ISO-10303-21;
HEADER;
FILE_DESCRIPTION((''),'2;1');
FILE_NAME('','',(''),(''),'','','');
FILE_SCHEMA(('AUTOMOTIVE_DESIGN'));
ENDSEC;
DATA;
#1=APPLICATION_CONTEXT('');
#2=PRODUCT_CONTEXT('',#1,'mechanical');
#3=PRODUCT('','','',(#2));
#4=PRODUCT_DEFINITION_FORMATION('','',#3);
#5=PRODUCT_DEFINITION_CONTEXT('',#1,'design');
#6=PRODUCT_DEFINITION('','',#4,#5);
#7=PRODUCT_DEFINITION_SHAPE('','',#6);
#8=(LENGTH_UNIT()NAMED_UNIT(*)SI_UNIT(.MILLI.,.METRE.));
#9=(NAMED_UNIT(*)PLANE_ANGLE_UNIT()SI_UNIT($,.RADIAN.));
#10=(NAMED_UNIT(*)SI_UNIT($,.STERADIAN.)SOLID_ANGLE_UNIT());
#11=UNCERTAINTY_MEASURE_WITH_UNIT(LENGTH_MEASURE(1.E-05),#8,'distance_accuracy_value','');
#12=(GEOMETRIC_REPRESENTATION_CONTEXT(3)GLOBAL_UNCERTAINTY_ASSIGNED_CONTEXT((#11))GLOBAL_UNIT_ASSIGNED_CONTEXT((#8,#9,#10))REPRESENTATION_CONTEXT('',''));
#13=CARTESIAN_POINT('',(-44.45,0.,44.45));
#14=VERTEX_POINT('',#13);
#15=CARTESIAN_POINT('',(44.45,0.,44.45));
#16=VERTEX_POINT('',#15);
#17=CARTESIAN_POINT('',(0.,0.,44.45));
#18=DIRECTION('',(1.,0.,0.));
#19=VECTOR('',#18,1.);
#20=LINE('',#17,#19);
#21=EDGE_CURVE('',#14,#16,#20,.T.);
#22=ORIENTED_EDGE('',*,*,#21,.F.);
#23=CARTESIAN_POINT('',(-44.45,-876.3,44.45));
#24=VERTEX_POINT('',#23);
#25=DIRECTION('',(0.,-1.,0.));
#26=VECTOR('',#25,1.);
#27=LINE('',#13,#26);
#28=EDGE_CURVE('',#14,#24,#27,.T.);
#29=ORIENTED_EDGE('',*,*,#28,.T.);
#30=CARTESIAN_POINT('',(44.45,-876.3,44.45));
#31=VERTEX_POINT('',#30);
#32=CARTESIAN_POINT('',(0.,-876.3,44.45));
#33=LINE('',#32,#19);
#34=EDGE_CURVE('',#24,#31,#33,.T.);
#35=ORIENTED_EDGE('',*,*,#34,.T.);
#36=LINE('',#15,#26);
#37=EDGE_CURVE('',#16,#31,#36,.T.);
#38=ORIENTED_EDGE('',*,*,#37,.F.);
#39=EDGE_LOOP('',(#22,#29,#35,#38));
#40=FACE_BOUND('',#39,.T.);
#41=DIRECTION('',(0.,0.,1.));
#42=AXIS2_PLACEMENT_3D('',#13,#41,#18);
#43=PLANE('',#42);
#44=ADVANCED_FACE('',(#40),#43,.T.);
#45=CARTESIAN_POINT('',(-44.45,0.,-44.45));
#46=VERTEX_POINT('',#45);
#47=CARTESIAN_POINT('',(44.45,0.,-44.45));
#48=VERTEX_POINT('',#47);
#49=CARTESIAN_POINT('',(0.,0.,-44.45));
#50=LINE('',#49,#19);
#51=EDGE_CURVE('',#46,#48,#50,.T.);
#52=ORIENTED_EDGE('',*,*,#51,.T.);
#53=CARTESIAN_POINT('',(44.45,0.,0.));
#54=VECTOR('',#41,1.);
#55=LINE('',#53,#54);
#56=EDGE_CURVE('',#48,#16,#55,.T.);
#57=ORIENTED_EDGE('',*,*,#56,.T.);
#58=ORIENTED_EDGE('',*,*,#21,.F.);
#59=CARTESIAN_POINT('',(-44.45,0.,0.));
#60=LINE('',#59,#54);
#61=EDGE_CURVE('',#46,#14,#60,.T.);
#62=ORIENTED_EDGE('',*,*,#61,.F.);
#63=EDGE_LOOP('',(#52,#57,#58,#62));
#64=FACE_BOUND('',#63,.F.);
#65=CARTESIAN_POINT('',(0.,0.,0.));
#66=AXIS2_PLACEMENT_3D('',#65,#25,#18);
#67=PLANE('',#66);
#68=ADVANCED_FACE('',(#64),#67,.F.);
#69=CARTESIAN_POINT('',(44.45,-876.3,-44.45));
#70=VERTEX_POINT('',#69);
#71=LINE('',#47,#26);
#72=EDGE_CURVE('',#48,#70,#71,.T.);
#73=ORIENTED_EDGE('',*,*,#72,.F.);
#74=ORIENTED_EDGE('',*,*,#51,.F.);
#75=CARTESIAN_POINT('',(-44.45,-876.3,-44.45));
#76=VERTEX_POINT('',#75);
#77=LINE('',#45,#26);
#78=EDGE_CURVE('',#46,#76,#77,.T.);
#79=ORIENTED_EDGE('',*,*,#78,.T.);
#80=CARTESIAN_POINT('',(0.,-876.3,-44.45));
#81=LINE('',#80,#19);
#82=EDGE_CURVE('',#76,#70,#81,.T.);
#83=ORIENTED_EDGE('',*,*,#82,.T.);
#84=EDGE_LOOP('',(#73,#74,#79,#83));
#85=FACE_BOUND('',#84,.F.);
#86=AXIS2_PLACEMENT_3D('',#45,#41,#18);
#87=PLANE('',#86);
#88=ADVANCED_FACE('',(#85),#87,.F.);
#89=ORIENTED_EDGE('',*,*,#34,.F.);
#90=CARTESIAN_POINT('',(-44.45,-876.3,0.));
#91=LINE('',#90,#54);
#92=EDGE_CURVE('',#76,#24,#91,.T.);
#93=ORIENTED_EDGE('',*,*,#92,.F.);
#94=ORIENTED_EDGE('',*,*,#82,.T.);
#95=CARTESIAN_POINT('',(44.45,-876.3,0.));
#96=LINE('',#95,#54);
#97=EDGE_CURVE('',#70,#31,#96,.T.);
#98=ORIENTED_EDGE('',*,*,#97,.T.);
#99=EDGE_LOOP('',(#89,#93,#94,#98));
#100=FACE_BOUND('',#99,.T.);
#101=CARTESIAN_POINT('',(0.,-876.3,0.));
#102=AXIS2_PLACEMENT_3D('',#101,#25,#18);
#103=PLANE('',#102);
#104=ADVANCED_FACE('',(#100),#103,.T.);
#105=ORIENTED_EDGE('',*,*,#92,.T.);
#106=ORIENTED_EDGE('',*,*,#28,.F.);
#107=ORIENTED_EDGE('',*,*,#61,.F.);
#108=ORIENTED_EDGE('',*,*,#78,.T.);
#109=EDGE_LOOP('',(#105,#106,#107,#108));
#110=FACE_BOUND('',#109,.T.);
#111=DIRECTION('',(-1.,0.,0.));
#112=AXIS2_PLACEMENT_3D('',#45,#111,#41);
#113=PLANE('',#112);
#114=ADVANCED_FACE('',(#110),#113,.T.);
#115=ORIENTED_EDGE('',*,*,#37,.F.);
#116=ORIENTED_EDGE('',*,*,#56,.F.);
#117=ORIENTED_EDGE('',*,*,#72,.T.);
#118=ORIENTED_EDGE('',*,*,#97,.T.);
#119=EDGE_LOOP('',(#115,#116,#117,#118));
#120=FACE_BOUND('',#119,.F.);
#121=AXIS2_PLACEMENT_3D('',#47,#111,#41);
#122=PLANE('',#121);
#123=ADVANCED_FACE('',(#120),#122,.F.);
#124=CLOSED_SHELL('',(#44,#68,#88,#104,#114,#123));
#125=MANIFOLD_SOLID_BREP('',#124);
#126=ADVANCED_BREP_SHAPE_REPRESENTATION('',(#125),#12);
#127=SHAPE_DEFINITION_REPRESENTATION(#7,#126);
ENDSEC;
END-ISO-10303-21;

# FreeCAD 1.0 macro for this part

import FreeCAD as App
import Part
import Sketcher
Q = App.Units.Quantity


def add_polygon(sketch, points):
    """Adds a closed chain of lines whose ends are joined by coincident constraints."""
    first, n = sketch.GeometryCount, len(points)
    for a, b in zip(points, points[1:] + points[:1]):
        sketch.addGeometry(Part.LineSegment(App.Vector(*a, 0), App.Vector(*b, 0)), False)
    for i in range(n):
        sketch.addConstraint(Sketcher.Constraint("Coincident", first + i, 2, first + (i + 1) % n, 1))

doc = App.newDocument("Part")
body = doc.addObject("PartDesign::Body", "Body")

sketch1 = body.newObject("Sketcher::SketchObject", "Sketch")
sketch1.AttachmentSupport = (doc.getObject("XZ_Plane"), [""])
sketch1.MapMode = "FlatFace"
add_polygon(sketch1, [(-44, 44), (-44, -44), (44, -44), (44, 44)])
sketch1.addConstraint([
    Sketcher.Constraint("Vertical", 0),
    Sketcher.Constraint("Horizontal", 1),
    Sketcher.Constraint("Vertical", 2),
    Sketcher.Constraint("Horizontal", 3),
    Sketcher.Constraint("Symmetric", 0, 2, 2, 2, -1, 1),
    Sketcher.Constraint("Equal", 3, 0),
    Sketcher.Constraint("DistanceX", 1, 1, 1, 2, Q("3.5 in")),
])
pad1 = body.newObject("PartDesign::Pad", "Pad")
pad1.Profile = sketch1
pad1.Length = Q("34.5 in")

doc.recompute()
